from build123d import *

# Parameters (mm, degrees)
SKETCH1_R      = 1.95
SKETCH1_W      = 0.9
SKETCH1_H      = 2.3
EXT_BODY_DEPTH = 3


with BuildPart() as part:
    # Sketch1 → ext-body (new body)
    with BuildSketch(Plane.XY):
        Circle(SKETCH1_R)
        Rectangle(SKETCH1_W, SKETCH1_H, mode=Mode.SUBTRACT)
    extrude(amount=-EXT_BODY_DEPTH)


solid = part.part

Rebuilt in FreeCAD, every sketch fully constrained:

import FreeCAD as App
import Part
import Sketcher
from FreeCAD import Vector


def add_polygon(sketch, points):
    """Adds a closed chain of lines whose ends are joined by coincident constraints."""
    first, n = sketch.GeometryCount, len(points)
    for a, b in zip(points, points[1:] + points[:1]):
        sketch.addGeometry(Part.LineSegment(App.Vector(*a, 0), App.Vector(*b, 0)), False)
    for i in range(n):
        sketch.addConstraint(Sketcher.Constraint("Coincident", first + i, 2, first + (i + 1) % n, 1))

doc = App.newDocument("Part")
body = doc.addObject("PartDesign::Body", "Body")

# Sketch on XY plane
sketch1 = body.newObject("Sketcher::SketchObject", "Sketch")
sketch1.AttachmentSupport = (doc.getObject("XY_Plane"), [""])
sketch1.MapMode = "FlatFace"
sketch1.addGeometry(Part.Circle(Vector(0, 0, 0), Vector(0, 0, 1), 1.9), False)  # 0
add_polygon(sketch1, [(0.5, -1.1), (-0.5, -1.1), (-0.5, 1.1), (0.5, 1.1)])  # lines 1-4
sketch1.addConstraint(Sketcher.Constraint("Horizontal", 1))
sketch1.addConstraint(Sketcher.Constraint("Vertical", 2))
sketch1.addConstraint(Sketcher.Constraint("Horizontal", 3))
sketch1.addConstraint(Sketcher.Constraint("Vertical", 4))
sketch1.addConstraint(Sketcher.Constraint("Coincident", 0, 3, -1, 1))
sketch1.addConstraint(Sketcher.Constraint("Symmetric", 1, 2, 3, 2, -1, 1))
sketch1.addConstraint(Sketcher.Constraint("Diameter", 0, 3.9))
sketch1.addConstraint(Sketcher.Constraint("DistanceX", 1, 2, 1, 1, 0.9))
sketch1.addConstraint(Sketcher.Constraint("DistanceY", 2, 1, 2, 2, 2.3))
pad1 = body.newObject("PartDesign::Pad", "Pad")
pad1.Profile = sketch1
pad1.Length = 3
pad1.Reversed = True

doc.recompute()
